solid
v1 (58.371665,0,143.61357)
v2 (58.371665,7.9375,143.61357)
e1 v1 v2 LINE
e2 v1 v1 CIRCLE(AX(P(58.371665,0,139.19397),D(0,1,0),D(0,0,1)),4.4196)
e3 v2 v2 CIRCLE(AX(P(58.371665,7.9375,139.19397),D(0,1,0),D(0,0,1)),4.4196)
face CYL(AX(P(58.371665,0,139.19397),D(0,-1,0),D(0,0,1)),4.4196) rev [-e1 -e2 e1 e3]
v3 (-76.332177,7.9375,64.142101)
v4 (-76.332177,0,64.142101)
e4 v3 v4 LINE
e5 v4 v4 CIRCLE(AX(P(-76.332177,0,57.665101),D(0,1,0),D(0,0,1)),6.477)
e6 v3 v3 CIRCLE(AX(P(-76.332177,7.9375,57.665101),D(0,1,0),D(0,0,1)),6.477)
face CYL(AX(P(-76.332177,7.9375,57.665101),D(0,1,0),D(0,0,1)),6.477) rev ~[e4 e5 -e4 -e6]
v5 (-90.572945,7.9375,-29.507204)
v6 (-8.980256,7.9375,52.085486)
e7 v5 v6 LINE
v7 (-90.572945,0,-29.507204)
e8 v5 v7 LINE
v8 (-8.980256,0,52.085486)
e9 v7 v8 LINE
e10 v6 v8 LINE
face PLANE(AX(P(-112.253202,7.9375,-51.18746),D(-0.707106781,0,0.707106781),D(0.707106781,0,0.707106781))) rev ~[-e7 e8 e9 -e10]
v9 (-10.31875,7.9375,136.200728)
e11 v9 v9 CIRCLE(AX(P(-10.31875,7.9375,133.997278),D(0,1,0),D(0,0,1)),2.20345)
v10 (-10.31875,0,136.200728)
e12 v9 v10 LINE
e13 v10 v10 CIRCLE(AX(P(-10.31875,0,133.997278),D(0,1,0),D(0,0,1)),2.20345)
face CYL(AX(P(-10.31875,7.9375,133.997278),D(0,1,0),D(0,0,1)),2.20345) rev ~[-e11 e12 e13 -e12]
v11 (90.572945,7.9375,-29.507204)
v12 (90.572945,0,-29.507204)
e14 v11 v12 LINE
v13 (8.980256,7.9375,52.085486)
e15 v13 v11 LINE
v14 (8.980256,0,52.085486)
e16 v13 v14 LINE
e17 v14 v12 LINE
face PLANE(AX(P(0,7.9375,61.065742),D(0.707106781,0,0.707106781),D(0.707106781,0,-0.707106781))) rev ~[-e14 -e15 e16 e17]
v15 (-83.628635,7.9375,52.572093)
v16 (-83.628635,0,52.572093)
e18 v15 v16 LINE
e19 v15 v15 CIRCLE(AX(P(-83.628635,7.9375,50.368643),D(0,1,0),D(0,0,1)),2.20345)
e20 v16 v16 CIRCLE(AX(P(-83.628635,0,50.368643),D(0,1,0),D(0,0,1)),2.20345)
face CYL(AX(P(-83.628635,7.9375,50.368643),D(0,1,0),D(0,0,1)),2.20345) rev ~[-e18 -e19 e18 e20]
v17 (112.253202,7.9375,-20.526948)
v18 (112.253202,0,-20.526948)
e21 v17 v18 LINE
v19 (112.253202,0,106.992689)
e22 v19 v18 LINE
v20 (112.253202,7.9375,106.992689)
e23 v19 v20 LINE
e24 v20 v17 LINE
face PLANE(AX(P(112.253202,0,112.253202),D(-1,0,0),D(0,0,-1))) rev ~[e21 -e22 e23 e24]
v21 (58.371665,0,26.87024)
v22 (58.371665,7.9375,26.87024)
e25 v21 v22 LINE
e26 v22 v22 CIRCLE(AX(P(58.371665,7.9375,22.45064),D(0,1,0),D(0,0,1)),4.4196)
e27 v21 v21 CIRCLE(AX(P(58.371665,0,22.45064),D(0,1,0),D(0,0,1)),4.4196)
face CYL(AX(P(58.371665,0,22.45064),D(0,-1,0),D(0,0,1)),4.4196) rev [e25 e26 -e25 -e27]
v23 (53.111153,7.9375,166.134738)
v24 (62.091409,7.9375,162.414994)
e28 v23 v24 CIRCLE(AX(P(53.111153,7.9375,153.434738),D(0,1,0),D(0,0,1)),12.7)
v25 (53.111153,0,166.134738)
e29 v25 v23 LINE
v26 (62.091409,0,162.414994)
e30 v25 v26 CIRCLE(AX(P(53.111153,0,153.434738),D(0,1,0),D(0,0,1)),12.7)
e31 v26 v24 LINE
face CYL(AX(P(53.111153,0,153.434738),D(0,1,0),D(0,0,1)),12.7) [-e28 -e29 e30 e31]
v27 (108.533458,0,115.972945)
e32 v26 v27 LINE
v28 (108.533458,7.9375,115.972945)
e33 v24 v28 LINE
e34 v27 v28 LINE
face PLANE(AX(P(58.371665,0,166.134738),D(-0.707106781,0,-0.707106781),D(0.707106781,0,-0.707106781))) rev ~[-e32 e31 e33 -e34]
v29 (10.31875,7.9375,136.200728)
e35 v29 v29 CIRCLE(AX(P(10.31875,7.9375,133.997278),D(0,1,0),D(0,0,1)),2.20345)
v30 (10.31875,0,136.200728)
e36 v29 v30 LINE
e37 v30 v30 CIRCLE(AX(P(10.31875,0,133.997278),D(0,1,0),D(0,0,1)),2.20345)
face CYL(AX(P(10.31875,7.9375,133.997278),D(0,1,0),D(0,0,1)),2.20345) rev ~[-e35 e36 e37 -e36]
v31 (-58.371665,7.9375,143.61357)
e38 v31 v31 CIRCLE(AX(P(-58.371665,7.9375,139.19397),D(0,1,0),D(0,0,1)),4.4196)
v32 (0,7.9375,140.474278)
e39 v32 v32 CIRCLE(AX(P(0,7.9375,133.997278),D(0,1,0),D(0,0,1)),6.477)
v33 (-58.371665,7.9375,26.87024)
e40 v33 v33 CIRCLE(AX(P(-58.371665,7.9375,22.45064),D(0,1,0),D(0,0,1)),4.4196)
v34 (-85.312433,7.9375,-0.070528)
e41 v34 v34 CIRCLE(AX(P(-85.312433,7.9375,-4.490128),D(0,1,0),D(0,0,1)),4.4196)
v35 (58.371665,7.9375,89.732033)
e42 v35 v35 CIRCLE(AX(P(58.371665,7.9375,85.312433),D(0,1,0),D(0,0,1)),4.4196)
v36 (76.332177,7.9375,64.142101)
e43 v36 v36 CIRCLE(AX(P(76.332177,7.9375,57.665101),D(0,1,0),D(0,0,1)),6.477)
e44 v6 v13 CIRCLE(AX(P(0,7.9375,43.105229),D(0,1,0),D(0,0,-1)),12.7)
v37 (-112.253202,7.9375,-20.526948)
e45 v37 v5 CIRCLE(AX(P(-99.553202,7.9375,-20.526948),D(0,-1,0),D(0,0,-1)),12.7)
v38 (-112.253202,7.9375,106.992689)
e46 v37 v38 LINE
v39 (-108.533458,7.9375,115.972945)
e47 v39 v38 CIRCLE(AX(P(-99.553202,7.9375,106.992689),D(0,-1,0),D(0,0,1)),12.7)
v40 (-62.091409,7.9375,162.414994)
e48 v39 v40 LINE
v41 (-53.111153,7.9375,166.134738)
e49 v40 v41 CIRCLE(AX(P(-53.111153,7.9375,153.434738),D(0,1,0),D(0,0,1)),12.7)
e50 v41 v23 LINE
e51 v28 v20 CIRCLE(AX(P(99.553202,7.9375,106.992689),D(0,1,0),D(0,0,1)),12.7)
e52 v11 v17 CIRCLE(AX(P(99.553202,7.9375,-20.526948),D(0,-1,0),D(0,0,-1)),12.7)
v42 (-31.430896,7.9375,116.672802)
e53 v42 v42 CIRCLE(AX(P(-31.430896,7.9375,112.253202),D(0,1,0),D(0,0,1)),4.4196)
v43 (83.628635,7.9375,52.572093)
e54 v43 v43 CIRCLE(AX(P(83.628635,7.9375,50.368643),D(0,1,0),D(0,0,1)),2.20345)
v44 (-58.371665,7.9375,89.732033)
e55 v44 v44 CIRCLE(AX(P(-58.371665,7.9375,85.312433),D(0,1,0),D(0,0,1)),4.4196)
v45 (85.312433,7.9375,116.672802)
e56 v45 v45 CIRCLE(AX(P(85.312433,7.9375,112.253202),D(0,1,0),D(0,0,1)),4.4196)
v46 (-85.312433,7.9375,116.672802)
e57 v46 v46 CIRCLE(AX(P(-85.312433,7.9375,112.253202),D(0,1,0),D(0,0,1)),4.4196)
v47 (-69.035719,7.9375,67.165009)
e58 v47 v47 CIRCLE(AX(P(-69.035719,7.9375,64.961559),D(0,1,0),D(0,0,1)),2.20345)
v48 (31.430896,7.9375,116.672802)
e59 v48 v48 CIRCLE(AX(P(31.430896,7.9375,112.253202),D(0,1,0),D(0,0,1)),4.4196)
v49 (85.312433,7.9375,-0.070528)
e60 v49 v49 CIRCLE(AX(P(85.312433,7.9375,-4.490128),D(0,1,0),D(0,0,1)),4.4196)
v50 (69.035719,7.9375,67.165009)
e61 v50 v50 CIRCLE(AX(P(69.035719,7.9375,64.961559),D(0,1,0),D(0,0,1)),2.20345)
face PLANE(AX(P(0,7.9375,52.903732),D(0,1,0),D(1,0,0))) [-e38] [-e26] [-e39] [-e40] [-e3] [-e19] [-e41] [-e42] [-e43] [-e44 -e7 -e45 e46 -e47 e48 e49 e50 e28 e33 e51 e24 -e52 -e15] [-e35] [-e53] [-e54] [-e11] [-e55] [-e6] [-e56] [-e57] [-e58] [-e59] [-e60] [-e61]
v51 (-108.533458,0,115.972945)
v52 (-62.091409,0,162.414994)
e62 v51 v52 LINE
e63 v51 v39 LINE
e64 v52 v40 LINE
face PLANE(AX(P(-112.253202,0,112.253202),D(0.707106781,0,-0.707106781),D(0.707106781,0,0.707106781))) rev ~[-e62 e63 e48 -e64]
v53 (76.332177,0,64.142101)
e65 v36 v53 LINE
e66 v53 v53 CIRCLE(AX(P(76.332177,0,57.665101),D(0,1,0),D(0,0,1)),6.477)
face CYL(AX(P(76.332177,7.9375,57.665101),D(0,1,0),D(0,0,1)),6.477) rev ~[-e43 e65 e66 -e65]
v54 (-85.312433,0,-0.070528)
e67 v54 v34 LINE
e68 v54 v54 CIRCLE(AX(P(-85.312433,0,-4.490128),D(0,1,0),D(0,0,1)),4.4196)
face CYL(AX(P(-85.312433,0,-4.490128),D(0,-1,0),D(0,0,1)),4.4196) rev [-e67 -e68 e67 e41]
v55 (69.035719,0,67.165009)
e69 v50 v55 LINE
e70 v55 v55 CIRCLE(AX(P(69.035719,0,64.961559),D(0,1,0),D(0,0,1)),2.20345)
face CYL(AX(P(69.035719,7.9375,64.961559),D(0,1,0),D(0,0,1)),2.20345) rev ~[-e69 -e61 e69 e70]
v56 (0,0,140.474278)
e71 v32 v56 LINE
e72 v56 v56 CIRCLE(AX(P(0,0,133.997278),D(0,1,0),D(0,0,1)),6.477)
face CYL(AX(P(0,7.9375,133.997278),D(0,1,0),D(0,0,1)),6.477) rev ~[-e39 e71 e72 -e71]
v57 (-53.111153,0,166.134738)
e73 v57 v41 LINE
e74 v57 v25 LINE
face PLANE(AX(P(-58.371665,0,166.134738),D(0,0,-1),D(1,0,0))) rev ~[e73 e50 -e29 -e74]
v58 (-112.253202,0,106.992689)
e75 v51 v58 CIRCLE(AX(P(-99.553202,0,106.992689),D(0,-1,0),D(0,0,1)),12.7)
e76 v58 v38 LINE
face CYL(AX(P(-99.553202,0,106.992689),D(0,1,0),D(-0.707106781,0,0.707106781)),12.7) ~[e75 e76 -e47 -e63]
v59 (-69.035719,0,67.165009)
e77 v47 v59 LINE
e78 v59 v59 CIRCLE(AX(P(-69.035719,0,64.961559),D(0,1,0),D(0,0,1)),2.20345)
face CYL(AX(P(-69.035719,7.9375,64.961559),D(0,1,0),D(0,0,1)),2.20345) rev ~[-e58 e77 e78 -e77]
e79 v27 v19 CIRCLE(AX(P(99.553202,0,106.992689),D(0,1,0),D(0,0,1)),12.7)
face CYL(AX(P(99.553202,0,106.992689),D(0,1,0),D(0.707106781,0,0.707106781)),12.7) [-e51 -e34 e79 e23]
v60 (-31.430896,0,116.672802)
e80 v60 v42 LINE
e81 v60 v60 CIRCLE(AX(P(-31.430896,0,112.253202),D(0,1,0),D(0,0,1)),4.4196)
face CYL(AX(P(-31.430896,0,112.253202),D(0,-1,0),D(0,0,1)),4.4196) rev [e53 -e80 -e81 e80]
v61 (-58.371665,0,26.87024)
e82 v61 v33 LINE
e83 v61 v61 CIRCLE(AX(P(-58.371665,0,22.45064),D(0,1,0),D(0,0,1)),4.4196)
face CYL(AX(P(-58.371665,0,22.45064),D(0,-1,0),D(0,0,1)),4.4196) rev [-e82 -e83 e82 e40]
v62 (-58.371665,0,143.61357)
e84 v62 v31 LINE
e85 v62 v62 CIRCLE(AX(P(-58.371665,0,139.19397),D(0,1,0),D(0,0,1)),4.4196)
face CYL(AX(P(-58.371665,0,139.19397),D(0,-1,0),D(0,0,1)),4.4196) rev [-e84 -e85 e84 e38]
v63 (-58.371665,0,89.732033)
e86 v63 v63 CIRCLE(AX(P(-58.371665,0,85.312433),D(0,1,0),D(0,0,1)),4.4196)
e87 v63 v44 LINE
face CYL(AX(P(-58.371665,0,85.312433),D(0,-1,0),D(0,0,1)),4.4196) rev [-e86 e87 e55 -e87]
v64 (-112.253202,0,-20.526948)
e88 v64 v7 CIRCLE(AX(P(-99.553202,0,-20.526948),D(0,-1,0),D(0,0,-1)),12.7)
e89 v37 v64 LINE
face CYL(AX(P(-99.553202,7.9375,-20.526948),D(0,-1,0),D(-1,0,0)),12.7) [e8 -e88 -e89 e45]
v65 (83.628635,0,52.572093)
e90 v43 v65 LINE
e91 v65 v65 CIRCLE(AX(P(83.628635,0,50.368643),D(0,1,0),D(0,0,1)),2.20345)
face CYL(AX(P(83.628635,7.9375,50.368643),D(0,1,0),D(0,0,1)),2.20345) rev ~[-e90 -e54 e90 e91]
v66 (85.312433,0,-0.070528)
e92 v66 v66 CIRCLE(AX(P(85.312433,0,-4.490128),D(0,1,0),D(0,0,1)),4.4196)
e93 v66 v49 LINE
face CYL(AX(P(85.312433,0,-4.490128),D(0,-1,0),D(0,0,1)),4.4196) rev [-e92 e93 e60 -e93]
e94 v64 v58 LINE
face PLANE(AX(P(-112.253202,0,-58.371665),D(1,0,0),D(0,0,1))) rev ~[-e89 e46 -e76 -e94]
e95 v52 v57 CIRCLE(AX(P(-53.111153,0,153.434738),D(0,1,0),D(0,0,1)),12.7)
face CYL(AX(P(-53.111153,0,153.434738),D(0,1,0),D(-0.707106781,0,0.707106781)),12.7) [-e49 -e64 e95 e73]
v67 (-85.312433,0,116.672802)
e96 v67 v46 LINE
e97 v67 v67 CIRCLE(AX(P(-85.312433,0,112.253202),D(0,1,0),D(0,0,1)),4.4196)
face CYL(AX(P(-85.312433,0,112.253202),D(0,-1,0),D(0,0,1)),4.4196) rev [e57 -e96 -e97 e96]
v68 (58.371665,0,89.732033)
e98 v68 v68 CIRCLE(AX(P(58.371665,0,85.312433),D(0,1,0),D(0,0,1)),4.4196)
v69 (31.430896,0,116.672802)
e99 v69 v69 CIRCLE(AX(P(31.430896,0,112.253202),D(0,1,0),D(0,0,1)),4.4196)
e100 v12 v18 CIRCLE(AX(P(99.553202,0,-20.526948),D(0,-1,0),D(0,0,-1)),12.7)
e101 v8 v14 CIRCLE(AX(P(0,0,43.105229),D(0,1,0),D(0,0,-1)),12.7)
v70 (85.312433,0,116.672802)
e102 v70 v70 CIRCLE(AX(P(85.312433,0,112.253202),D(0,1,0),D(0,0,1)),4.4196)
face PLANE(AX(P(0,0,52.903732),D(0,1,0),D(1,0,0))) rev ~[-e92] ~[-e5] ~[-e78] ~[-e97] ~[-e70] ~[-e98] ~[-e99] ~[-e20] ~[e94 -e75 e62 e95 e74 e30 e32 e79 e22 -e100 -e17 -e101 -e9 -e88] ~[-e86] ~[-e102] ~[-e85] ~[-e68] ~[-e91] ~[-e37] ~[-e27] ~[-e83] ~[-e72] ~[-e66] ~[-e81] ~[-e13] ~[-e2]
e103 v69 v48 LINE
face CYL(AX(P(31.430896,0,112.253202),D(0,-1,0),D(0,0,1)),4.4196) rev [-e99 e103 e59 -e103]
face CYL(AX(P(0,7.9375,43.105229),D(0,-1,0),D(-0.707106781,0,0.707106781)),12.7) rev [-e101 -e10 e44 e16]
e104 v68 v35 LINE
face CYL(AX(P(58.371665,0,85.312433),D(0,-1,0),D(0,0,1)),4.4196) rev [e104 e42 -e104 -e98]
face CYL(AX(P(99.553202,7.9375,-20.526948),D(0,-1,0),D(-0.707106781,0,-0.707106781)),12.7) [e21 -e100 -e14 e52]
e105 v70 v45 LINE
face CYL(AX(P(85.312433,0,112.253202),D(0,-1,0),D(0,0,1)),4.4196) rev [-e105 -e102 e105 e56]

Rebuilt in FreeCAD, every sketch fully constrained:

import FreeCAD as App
import Part
import Sketcher
Q = App.Units.Quantity


def edges_at(feature, points):
    """Names of the edges that pass closest to the given points."""
    edges = feature.Shape.Edges
    near = lambda p: min(range(len(edges)), key=lambda i: edges[i].distToShape(Part.Vertex(*p))[0])
    return sorted({f"Edge{near(p) + 1}" for p in points})


def add_polygon(sketch, points):
    """Adds a closed chain of lines whose ends are joined by coincident constraints."""
    first, n = sketch.GeometryCount, len(points)
    for a, b in zip(points, points[1:] + points[:1]):
        sketch.addGeometry(Part.LineSegment(App.Vector(*a, 0), App.Vector(*b, 0)), False)
    for i in range(n):
        sketch.addConstraint(Sketcher.Constraint("Coincident", first + i, 2, first + (i + 1) % n, 1))

doc = App.newDocument("Part")
params = doc.addObject("Spreadsheet::Sheet", "Params")
for row, (alias, value) in enumerate([
    ("sketch1_length", "3 in"),
    ("sketch1_diameter", "0.348 in"),
    ("sketch1_length2", "6.25 in"),
    ("pad1_length", "0.3125 in"),
    ("sketch2_length", "6.25 in"),
    ("fillet_radius", "0.5 in"),
    ("sketch3_diameter", "0.51 in"),
], start=1):
    params.set(f"A{row}", alias)
    params.set(f"B{row}", "=" + value)
    params.setAlias(f"B{row}", alias)

body = doc.addObject("PartDesign::Body", "Body")

# Sketch on XZ plane
sketch1 = body.newObject("Sketcher::SketchObject", "Sketch")
sketch1.AttachmentSupport = (doc.getObject("XZ_Plane"), [""])
sketch1.MapMode = "FlatFace"
add_polygon(sketch1, [(-112.3, 112.3), (-58.4, 166.1), (58.4, 166.1), (112.3, 112.3), (112.3, -58.4), (0, 53.9), (-112.3, -58.4)])  # lines 0-6
sketch1.addGeometry(Part.Circle(App.Vector(-58.4, 139.2, 0), App.Vector(0, 0, 1), 4.4), False)  # 7
sketch1.addGeometry(Part.Circle(App.Vector(-85.3, 112.3, 0), App.Vector(0, 0, 1), 4.4), False)  # 8
sketch1.addGeometry(Part.Circle(App.Vector(-31.4, 112.3, 0), App.Vector(0, 0, 1), 4.4), False)  # 9
sketch1.addGeometry(Part.Circle(App.Vector(-58.4, 85.3, 0), App.Vector(0, 0, 1), 4.4), False)  # 10
sketch1.addGeometry(Part.Circle(App.Vector(31.4, 112.3, 0), App.Vector(0, 0, 1), 4.4), False)  # 11
sketch1.addGeometry(Part.Circle(App.Vector(58.4, 139.2, 0), App.Vector(0, 0, 1), 4.4), False)  # 12
sketch1.addGeometry(Part.Circle(App.Vector(85.3, 112.3, 0), App.Vector(0, 0, 1), 4.4), False)  # 13
sketch1.addGeometry(Part.Circle(App.Vector(58.4, 85.3, 0), App.Vector(0, 0, 1), 4.4), False)  # 14
sketch1.addGeometry(Part.Circle(App.Vector(-58.4, 22.5, 0), App.Vector(0, 0, 1), 4.4), False)  # 15
sketch1.addGeometry(Part.Circle(App.Vector(-85.3, -4.5, 0), App.Vector(0, 0, 1), 4.4), False)  # 16
sketch1.addGeometry(Part.Circle(App.Vector(58.4, 22.5, 0), App.Vector(0, 0, 1), 4.4), False)  # 17
sketch1.addGeometry(Part.Circle(App.Vector(85.3, -4.5, 0), App.Vector(0, 0, 1), 4.4), False)  # 18
sketch1.addConstraint([
    Sketcher.Constraint("Horizontal", 1),
    Sketcher.Constraint("Vertical", 3),
    Sketcher.Constraint("Vertical", 6),
    Sketcher.Constraint("Equal", 7, 8),
    Sketcher.Constraint("Equal", 8, 9),
    Sketcher.Constraint("Equal", 9, 10),
    Sketcher.Constraint("Equal", 10, 11),
    Sketcher.Constraint("Equal", 11, 12),
    Sketcher.Constraint("Equal", 12, 13),
    Sketcher.Constraint("Equal", 13, 14),
    Sketcher.Constraint("Equal", 14, 15),
    Sketcher.Constraint("Equal", 15, 16),
    Sketcher.Constraint("Equal", 16, 17),
    Sketcher.Constraint("Equal", 17, 18),
    Sketcher.Constraint("Symmetric", 9, 3, 11, 3, -2),
    Sketcher.Constraint("Symmetric", 7, 3, 12, 3, -2),
    Sketcher.Constraint("Symmetric", 8, 3, 13, 3, -2),
    Sketcher.Constraint("Symmetric", 10, 3, 14, 3, -2),
    Sketcher.Constraint("Symmetric", 15, 3, 17, 3, -2),
    Sketcher.Constraint("Symmetric", 16, 3, 18, 3, -2),
    Sketcher.Constraint("Symmetric", 3, 2, 5, 2, -2),
    Sketcher.Constraint("PointOnObject", 4, 2, -2),
    Sketcher.Constraint("Perpendicular", 0, 2),
    Sketcher.Constraint("Parallel", 2, 4),
    Sketcher.Constraint("Perpendicular", 4, 5),
    Sketcher.Constraint("Horizontal", 8, 3, 9, 3),
    Sketcher.Constraint("Horizontal", 13, 3, 2, 2),
    Sketcher.Constraint("Horizontal", 2, 2, 6, 2),
    Sketcher.Constraint("Vertical", 7, 3, 10, 3),
    Sketcher.Constraint("Vertical", 10, 3, 15, 3),
    Sketcher.Constraint("Vertical", 8, 3, 16, 3),
    Sketcher.Constraint("Vertical", 15, 3, 0, 2),
    Sketcher.Constraint("Distance", 0, Q("3 in")),
    Sketcher.Constraint("Diameter", 7, Q("0.348 in")),
    Sketcher.Constraint("Distance", 4, Q("6.25 in")),
    Sketcher.Constraint("DistanceY", -1, 1, 8, 3, Q("112.253202 mm")),
    Sketcher.Constraint("DistanceY", 3, 2, 3, 1, Q("170.624866 mm")),
    Sketcher.Constraint("DistanceY", -1, 1, 7, 3, Q("139.19397 mm")),
    Sketcher.Constraint("DistanceY", -1, 1, 15, 3, Q("22.45064 mm")),
    Sketcher.Constraint("DistanceY", 16, 3, -1, 1, Q("4.490128 mm")),
    Sketcher.Constraint("DistanceX", 8, 3, 7, 3, Q("26.940768 mm")),
    Sketcher.Constraint("DistanceX", 7, 3, 9, 3, Q("26.940768 mm")),
    Sketcher.Constraint("DistanceY", 10, 3, 9, 3, Q("26.940768 mm")),
])
sketch1.setExpression("Constraints[39]", "Params.sketch1_length")
sketch1.setExpression("Constraints[40]", "Params.sketch1_diameter")
sketch1.setExpression("Constraints[41]", "Params.sketch1_length2")
pad1 = body.newObject("PartDesign::Pad", "Pad")
pad1.Profile = sketch1
pad1.setExpression("Length", "Params.pad1_length")
pad1.Reversed = True

# Sketch on XZ plane
sketch2 = body.newObject("Sketcher::SketchObject", "Sketch001")
sketch2.AttachmentSupport = (doc.getObject("XZ_Plane"), [""])
sketch2.MapMode = "FlatFace"
sketch2.AttachmentOffset = App.Placement(App.Vector(0, 0, -0.3125 * 25.4), App.Rotation())
add_polygon(sketch2, [(0, 54), (-112, -58), (-112, -51), (0, 61), (112, -51), (112, -58)])  # lines 0-5
sketch2.addConstraint([
    Sketcher.Constraint("Vertical", 1),
    Sketcher.Constraint("Vertical", 4),
    Sketcher.Constraint("Symmetric", 1, 2, 3, 2, -2),
    Sketcher.Constraint("PointOnObject", 2, 2, -2),
    Sketcher.Constraint("PointOnObject", 5, 2, -2),
    Sketcher.Constraint("Parallel", 0, 2),
    Sketcher.Constraint("Perpendicular", 2, 3),
    Sketcher.Constraint("Parallel", 3, 5),
    Sketcher.Constraint("Distance", 0, Q("6.25 in")),
    Sketcher.Constraint("DistanceY", 1, 1, 1, 2, Q("7.184205 mm")),
    Sketcher.Constraint("DistanceY", 1, 2, -1, 1, Q("51.18746 mm")),
])
sketch2.setExpression("Constraints[14]", "Params.sketch2_length")
pocket1 = body.newObject("PartDesign::Pocket", "Pocket")
pocket1.Profile = sketch2
pocket1.Type = "ThroughAll"
pocket1.Reversed = True
doc.recompute()

fillet = body.newObject("PartDesign::Fillet", "Fillet")
fillet.Base = (pocket1, edges_at(pocket1, [
    (112.253, 3.969, 112.253),
    (58.372, 3.969, 166.135),
    (-58.372, 3.969, 166.135),
    (-112.253, 3.969, 112.253),
    (0, 3.969, 61.066),
    (-112.253, 3.969, -51.187),
    (112.253, 3.969, -51.187),
]))
fillet.setExpression("Radius", "Params.fillet_radius")

# Sketch on XZ plane
sketch3 = body.newObject("Sketcher::SketchObject", "Sketch002")
sketch3.AttachmentSupport = (doc.getObject("XZ_Plane"), [""])
sketch3.MapMode = "FlatFace"
sketch3.AttachmentOffset = App.Placement(App.Vector(0, 0, -0.3125 * 25.4), App.Rotation())
sketch3.addGeometry([
    Part.Circle(App.Vector(0, 134, 0), App.Vector(0, 0, 1), 6.5),  # 0
    Part.Circle(App.Vector(-10.3, 134, 0), App.Vector(0, 0, 1), 2.2),  # 1
    Part.Circle(App.Vector(10.3, 134, 0), App.Vector(0, 0, 1), 2.2),  # 2
    Part.Circle(App.Vector(-76.3, 57.7, 0), App.Vector(0, 0, 1), 6.5),  # 3
    Part.Circle(App.Vector(-69, 65, 0), App.Vector(0, 0, 1), 2.2),  # 4
    Part.Circle(App.Vector(-83.6, 50.4, 0), App.Vector(0, 0, 1), 2.2),  # 5
    Part.Circle(App.Vector(76.3, 57.7, 0), App.Vector(0, 0, 1), 6.5),  # 6
    Part.Circle(App.Vector(69, 65, 0), App.Vector(0, 0, 1), 2.2),  # 7
    Part.Circle(App.Vector(83.6, 50.4, 0), App.Vector(0, 0, 1), 2.2),  # 8
], False)
sketch3.addConstraint([
    Sketcher.Constraint("Equal", 1, 2),
    Sketcher.Constraint("Equal", 0, 3),
    Sketcher.Constraint("Equal", 2, 4),
    Sketcher.Constraint("Equal", 4, 5),
    Sketcher.Constraint("Equal", 3, 6),
    Sketcher.Constraint("Equal", 5, 7),
    Sketcher.Constraint("Equal", 7, 8),
    Sketcher.Constraint("Symmetric", 1, 3, 2, 3, -2),
    Sketcher.Constraint("Symmetric", 3, 3, 6, 3, -2),
    Sketcher.Constraint("Symmetric", 4, 3, 7, 3, -2),
    Sketcher.Constraint("Symmetric", 5, 3, 8, 3, -2),
    Sketcher.Constraint("PointOnObject", 0, 3, -2),
    Sketcher.Constraint("Horizontal", 0, 3, 1, 3),
    Sketcher.Constraint("Diameter", 0, Q("0.51 in")),
    Sketcher.Constraint("Diameter", 1, Q("0.1735 in")),
    Sketcher.Constraint("DistanceX", 1, 3, -1, 1, Q("0.40625 in")),
    Sketcher.Constraint("DistanceY", -1, 1, 3, 3, Q("57.665101 mm")),
    Sketcher.Constraint("DistanceY", -1, 1, 0, 3, Q("133.997278 mm")),
    Sketcher.Constraint("DistanceX", 4, 3, -1, 1, Q("69.035719 mm")),
    Sketcher.Constraint("DistanceY", -1, 1, 4, 3, Q("64.961559 mm")),
    Sketcher.Constraint("DistanceX", 3, 3, 4, 3, Q("7.296458 mm")),
    Sketcher.Constraint("DistanceX", 5, 3, 3, 3, Q("7.296458 mm")),
    Sketcher.Constraint("DistanceY", 5, 3, 3, 3, Q("7.296458 mm")),
])
sketch3.setExpression("Constraints[13]", "Params.sketch3_diameter")
pocket2 = body.newObject("PartDesign::Pocket", "Pocket001")
pocket2.Profile = sketch3
pocket2.Type = "ThroughAll"
pocket2.Reversed = True

doc.recompute()
